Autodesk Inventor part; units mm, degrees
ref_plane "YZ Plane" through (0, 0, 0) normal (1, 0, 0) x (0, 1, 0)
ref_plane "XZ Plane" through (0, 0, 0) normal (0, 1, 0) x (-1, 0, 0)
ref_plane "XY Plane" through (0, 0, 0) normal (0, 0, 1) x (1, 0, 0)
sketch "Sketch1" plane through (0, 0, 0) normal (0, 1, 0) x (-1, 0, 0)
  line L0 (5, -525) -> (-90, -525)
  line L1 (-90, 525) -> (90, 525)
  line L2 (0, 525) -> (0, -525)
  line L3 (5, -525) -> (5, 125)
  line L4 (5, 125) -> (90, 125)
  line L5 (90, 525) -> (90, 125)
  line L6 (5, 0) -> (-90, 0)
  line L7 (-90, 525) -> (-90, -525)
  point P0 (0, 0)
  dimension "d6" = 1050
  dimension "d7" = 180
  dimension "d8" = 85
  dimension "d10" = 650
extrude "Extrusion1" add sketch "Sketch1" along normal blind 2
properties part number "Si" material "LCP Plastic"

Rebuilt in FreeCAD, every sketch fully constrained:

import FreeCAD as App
import Part
import Sketcher
from FreeCAD import Vector
Q = App.Units.Quantity

doc = App.newDocument("Part")
body = doc.addObject("PartDesign::Body", "Body")

sketch1 = body.newObject("Sketcher::SketchObject", "Sketch")
sketch1.AttachmentSupport = (doc.getObject("XZ_Plane"), [""])
sketch1.MapMode = "FlatFace"
sketch1.addGeometry([
    Part.LineSegment(Vector(-5, -525, 0), Vector(-5, 125, 0)),
    Part.LineSegment(Vector(-5, 125, 0), Vector(-90, 125, 0)),
    Part.LineSegment(Vector(-90, 125, 0), Vector(-90, 525, 0)),
    Part.LineSegment(Vector(-90, 525, 0), Vector(90, 525, 0)),
    Part.LineSegment(Vector(90, 525, 0), Vector(90, -525, 0)),
    Part.LineSegment(Vector(90, -525, 0), Vector(-5, -525, 0)),
], False)
sketch1.addConstraint([
    Sketcher.Constraint("Coincident", 0, 2, 1, 1),
    Sketcher.Constraint("Coincident", 1, 2, 2, 1),
    Sketcher.Constraint("Coincident", 2, 2, 3, 1),
    Sketcher.Constraint("Coincident", 3, 2, 4, 1),
    Sketcher.Constraint("Coincident", 4, 2, 5, 1),
    Sketcher.Constraint("Coincident", 5, 2, 0, 1),
    Sketcher.Constraint("Vertical", 0),
    Sketcher.Constraint("Horizontal", 1),
    Sketcher.Constraint("Vertical", 2),
    Sketcher.Constraint("Horizontal", 3),
    Sketcher.Constraint("Vertical", 4),
    Sketcher.Constraint("Horizontal", 5),
    Sketcher.Constraint("Symmetric", 2, 2, 4, 2, -1, 1),
    Sketcher.Constraint("DistanceX", 1, 2, 1, 1, Q("85 mm")),
    Sketcher.Constraint("DistanceX", 3, 1, 3, 2, Q("180 mm")),
    Sketcher.Constraint("DistanceY", 0, 1, 0, 2, Q("650 mm")),
    Sketcher.Constraint("DistanceY", 4, 2, 4, 1, Q("1050 mm")),
])
pad1 = body.newObject("PartDesign::Pad", "Pad")
pad1.Profile = sketch1
pad1.Length = 2
pad1.Reversed = True

doc.recompute()
